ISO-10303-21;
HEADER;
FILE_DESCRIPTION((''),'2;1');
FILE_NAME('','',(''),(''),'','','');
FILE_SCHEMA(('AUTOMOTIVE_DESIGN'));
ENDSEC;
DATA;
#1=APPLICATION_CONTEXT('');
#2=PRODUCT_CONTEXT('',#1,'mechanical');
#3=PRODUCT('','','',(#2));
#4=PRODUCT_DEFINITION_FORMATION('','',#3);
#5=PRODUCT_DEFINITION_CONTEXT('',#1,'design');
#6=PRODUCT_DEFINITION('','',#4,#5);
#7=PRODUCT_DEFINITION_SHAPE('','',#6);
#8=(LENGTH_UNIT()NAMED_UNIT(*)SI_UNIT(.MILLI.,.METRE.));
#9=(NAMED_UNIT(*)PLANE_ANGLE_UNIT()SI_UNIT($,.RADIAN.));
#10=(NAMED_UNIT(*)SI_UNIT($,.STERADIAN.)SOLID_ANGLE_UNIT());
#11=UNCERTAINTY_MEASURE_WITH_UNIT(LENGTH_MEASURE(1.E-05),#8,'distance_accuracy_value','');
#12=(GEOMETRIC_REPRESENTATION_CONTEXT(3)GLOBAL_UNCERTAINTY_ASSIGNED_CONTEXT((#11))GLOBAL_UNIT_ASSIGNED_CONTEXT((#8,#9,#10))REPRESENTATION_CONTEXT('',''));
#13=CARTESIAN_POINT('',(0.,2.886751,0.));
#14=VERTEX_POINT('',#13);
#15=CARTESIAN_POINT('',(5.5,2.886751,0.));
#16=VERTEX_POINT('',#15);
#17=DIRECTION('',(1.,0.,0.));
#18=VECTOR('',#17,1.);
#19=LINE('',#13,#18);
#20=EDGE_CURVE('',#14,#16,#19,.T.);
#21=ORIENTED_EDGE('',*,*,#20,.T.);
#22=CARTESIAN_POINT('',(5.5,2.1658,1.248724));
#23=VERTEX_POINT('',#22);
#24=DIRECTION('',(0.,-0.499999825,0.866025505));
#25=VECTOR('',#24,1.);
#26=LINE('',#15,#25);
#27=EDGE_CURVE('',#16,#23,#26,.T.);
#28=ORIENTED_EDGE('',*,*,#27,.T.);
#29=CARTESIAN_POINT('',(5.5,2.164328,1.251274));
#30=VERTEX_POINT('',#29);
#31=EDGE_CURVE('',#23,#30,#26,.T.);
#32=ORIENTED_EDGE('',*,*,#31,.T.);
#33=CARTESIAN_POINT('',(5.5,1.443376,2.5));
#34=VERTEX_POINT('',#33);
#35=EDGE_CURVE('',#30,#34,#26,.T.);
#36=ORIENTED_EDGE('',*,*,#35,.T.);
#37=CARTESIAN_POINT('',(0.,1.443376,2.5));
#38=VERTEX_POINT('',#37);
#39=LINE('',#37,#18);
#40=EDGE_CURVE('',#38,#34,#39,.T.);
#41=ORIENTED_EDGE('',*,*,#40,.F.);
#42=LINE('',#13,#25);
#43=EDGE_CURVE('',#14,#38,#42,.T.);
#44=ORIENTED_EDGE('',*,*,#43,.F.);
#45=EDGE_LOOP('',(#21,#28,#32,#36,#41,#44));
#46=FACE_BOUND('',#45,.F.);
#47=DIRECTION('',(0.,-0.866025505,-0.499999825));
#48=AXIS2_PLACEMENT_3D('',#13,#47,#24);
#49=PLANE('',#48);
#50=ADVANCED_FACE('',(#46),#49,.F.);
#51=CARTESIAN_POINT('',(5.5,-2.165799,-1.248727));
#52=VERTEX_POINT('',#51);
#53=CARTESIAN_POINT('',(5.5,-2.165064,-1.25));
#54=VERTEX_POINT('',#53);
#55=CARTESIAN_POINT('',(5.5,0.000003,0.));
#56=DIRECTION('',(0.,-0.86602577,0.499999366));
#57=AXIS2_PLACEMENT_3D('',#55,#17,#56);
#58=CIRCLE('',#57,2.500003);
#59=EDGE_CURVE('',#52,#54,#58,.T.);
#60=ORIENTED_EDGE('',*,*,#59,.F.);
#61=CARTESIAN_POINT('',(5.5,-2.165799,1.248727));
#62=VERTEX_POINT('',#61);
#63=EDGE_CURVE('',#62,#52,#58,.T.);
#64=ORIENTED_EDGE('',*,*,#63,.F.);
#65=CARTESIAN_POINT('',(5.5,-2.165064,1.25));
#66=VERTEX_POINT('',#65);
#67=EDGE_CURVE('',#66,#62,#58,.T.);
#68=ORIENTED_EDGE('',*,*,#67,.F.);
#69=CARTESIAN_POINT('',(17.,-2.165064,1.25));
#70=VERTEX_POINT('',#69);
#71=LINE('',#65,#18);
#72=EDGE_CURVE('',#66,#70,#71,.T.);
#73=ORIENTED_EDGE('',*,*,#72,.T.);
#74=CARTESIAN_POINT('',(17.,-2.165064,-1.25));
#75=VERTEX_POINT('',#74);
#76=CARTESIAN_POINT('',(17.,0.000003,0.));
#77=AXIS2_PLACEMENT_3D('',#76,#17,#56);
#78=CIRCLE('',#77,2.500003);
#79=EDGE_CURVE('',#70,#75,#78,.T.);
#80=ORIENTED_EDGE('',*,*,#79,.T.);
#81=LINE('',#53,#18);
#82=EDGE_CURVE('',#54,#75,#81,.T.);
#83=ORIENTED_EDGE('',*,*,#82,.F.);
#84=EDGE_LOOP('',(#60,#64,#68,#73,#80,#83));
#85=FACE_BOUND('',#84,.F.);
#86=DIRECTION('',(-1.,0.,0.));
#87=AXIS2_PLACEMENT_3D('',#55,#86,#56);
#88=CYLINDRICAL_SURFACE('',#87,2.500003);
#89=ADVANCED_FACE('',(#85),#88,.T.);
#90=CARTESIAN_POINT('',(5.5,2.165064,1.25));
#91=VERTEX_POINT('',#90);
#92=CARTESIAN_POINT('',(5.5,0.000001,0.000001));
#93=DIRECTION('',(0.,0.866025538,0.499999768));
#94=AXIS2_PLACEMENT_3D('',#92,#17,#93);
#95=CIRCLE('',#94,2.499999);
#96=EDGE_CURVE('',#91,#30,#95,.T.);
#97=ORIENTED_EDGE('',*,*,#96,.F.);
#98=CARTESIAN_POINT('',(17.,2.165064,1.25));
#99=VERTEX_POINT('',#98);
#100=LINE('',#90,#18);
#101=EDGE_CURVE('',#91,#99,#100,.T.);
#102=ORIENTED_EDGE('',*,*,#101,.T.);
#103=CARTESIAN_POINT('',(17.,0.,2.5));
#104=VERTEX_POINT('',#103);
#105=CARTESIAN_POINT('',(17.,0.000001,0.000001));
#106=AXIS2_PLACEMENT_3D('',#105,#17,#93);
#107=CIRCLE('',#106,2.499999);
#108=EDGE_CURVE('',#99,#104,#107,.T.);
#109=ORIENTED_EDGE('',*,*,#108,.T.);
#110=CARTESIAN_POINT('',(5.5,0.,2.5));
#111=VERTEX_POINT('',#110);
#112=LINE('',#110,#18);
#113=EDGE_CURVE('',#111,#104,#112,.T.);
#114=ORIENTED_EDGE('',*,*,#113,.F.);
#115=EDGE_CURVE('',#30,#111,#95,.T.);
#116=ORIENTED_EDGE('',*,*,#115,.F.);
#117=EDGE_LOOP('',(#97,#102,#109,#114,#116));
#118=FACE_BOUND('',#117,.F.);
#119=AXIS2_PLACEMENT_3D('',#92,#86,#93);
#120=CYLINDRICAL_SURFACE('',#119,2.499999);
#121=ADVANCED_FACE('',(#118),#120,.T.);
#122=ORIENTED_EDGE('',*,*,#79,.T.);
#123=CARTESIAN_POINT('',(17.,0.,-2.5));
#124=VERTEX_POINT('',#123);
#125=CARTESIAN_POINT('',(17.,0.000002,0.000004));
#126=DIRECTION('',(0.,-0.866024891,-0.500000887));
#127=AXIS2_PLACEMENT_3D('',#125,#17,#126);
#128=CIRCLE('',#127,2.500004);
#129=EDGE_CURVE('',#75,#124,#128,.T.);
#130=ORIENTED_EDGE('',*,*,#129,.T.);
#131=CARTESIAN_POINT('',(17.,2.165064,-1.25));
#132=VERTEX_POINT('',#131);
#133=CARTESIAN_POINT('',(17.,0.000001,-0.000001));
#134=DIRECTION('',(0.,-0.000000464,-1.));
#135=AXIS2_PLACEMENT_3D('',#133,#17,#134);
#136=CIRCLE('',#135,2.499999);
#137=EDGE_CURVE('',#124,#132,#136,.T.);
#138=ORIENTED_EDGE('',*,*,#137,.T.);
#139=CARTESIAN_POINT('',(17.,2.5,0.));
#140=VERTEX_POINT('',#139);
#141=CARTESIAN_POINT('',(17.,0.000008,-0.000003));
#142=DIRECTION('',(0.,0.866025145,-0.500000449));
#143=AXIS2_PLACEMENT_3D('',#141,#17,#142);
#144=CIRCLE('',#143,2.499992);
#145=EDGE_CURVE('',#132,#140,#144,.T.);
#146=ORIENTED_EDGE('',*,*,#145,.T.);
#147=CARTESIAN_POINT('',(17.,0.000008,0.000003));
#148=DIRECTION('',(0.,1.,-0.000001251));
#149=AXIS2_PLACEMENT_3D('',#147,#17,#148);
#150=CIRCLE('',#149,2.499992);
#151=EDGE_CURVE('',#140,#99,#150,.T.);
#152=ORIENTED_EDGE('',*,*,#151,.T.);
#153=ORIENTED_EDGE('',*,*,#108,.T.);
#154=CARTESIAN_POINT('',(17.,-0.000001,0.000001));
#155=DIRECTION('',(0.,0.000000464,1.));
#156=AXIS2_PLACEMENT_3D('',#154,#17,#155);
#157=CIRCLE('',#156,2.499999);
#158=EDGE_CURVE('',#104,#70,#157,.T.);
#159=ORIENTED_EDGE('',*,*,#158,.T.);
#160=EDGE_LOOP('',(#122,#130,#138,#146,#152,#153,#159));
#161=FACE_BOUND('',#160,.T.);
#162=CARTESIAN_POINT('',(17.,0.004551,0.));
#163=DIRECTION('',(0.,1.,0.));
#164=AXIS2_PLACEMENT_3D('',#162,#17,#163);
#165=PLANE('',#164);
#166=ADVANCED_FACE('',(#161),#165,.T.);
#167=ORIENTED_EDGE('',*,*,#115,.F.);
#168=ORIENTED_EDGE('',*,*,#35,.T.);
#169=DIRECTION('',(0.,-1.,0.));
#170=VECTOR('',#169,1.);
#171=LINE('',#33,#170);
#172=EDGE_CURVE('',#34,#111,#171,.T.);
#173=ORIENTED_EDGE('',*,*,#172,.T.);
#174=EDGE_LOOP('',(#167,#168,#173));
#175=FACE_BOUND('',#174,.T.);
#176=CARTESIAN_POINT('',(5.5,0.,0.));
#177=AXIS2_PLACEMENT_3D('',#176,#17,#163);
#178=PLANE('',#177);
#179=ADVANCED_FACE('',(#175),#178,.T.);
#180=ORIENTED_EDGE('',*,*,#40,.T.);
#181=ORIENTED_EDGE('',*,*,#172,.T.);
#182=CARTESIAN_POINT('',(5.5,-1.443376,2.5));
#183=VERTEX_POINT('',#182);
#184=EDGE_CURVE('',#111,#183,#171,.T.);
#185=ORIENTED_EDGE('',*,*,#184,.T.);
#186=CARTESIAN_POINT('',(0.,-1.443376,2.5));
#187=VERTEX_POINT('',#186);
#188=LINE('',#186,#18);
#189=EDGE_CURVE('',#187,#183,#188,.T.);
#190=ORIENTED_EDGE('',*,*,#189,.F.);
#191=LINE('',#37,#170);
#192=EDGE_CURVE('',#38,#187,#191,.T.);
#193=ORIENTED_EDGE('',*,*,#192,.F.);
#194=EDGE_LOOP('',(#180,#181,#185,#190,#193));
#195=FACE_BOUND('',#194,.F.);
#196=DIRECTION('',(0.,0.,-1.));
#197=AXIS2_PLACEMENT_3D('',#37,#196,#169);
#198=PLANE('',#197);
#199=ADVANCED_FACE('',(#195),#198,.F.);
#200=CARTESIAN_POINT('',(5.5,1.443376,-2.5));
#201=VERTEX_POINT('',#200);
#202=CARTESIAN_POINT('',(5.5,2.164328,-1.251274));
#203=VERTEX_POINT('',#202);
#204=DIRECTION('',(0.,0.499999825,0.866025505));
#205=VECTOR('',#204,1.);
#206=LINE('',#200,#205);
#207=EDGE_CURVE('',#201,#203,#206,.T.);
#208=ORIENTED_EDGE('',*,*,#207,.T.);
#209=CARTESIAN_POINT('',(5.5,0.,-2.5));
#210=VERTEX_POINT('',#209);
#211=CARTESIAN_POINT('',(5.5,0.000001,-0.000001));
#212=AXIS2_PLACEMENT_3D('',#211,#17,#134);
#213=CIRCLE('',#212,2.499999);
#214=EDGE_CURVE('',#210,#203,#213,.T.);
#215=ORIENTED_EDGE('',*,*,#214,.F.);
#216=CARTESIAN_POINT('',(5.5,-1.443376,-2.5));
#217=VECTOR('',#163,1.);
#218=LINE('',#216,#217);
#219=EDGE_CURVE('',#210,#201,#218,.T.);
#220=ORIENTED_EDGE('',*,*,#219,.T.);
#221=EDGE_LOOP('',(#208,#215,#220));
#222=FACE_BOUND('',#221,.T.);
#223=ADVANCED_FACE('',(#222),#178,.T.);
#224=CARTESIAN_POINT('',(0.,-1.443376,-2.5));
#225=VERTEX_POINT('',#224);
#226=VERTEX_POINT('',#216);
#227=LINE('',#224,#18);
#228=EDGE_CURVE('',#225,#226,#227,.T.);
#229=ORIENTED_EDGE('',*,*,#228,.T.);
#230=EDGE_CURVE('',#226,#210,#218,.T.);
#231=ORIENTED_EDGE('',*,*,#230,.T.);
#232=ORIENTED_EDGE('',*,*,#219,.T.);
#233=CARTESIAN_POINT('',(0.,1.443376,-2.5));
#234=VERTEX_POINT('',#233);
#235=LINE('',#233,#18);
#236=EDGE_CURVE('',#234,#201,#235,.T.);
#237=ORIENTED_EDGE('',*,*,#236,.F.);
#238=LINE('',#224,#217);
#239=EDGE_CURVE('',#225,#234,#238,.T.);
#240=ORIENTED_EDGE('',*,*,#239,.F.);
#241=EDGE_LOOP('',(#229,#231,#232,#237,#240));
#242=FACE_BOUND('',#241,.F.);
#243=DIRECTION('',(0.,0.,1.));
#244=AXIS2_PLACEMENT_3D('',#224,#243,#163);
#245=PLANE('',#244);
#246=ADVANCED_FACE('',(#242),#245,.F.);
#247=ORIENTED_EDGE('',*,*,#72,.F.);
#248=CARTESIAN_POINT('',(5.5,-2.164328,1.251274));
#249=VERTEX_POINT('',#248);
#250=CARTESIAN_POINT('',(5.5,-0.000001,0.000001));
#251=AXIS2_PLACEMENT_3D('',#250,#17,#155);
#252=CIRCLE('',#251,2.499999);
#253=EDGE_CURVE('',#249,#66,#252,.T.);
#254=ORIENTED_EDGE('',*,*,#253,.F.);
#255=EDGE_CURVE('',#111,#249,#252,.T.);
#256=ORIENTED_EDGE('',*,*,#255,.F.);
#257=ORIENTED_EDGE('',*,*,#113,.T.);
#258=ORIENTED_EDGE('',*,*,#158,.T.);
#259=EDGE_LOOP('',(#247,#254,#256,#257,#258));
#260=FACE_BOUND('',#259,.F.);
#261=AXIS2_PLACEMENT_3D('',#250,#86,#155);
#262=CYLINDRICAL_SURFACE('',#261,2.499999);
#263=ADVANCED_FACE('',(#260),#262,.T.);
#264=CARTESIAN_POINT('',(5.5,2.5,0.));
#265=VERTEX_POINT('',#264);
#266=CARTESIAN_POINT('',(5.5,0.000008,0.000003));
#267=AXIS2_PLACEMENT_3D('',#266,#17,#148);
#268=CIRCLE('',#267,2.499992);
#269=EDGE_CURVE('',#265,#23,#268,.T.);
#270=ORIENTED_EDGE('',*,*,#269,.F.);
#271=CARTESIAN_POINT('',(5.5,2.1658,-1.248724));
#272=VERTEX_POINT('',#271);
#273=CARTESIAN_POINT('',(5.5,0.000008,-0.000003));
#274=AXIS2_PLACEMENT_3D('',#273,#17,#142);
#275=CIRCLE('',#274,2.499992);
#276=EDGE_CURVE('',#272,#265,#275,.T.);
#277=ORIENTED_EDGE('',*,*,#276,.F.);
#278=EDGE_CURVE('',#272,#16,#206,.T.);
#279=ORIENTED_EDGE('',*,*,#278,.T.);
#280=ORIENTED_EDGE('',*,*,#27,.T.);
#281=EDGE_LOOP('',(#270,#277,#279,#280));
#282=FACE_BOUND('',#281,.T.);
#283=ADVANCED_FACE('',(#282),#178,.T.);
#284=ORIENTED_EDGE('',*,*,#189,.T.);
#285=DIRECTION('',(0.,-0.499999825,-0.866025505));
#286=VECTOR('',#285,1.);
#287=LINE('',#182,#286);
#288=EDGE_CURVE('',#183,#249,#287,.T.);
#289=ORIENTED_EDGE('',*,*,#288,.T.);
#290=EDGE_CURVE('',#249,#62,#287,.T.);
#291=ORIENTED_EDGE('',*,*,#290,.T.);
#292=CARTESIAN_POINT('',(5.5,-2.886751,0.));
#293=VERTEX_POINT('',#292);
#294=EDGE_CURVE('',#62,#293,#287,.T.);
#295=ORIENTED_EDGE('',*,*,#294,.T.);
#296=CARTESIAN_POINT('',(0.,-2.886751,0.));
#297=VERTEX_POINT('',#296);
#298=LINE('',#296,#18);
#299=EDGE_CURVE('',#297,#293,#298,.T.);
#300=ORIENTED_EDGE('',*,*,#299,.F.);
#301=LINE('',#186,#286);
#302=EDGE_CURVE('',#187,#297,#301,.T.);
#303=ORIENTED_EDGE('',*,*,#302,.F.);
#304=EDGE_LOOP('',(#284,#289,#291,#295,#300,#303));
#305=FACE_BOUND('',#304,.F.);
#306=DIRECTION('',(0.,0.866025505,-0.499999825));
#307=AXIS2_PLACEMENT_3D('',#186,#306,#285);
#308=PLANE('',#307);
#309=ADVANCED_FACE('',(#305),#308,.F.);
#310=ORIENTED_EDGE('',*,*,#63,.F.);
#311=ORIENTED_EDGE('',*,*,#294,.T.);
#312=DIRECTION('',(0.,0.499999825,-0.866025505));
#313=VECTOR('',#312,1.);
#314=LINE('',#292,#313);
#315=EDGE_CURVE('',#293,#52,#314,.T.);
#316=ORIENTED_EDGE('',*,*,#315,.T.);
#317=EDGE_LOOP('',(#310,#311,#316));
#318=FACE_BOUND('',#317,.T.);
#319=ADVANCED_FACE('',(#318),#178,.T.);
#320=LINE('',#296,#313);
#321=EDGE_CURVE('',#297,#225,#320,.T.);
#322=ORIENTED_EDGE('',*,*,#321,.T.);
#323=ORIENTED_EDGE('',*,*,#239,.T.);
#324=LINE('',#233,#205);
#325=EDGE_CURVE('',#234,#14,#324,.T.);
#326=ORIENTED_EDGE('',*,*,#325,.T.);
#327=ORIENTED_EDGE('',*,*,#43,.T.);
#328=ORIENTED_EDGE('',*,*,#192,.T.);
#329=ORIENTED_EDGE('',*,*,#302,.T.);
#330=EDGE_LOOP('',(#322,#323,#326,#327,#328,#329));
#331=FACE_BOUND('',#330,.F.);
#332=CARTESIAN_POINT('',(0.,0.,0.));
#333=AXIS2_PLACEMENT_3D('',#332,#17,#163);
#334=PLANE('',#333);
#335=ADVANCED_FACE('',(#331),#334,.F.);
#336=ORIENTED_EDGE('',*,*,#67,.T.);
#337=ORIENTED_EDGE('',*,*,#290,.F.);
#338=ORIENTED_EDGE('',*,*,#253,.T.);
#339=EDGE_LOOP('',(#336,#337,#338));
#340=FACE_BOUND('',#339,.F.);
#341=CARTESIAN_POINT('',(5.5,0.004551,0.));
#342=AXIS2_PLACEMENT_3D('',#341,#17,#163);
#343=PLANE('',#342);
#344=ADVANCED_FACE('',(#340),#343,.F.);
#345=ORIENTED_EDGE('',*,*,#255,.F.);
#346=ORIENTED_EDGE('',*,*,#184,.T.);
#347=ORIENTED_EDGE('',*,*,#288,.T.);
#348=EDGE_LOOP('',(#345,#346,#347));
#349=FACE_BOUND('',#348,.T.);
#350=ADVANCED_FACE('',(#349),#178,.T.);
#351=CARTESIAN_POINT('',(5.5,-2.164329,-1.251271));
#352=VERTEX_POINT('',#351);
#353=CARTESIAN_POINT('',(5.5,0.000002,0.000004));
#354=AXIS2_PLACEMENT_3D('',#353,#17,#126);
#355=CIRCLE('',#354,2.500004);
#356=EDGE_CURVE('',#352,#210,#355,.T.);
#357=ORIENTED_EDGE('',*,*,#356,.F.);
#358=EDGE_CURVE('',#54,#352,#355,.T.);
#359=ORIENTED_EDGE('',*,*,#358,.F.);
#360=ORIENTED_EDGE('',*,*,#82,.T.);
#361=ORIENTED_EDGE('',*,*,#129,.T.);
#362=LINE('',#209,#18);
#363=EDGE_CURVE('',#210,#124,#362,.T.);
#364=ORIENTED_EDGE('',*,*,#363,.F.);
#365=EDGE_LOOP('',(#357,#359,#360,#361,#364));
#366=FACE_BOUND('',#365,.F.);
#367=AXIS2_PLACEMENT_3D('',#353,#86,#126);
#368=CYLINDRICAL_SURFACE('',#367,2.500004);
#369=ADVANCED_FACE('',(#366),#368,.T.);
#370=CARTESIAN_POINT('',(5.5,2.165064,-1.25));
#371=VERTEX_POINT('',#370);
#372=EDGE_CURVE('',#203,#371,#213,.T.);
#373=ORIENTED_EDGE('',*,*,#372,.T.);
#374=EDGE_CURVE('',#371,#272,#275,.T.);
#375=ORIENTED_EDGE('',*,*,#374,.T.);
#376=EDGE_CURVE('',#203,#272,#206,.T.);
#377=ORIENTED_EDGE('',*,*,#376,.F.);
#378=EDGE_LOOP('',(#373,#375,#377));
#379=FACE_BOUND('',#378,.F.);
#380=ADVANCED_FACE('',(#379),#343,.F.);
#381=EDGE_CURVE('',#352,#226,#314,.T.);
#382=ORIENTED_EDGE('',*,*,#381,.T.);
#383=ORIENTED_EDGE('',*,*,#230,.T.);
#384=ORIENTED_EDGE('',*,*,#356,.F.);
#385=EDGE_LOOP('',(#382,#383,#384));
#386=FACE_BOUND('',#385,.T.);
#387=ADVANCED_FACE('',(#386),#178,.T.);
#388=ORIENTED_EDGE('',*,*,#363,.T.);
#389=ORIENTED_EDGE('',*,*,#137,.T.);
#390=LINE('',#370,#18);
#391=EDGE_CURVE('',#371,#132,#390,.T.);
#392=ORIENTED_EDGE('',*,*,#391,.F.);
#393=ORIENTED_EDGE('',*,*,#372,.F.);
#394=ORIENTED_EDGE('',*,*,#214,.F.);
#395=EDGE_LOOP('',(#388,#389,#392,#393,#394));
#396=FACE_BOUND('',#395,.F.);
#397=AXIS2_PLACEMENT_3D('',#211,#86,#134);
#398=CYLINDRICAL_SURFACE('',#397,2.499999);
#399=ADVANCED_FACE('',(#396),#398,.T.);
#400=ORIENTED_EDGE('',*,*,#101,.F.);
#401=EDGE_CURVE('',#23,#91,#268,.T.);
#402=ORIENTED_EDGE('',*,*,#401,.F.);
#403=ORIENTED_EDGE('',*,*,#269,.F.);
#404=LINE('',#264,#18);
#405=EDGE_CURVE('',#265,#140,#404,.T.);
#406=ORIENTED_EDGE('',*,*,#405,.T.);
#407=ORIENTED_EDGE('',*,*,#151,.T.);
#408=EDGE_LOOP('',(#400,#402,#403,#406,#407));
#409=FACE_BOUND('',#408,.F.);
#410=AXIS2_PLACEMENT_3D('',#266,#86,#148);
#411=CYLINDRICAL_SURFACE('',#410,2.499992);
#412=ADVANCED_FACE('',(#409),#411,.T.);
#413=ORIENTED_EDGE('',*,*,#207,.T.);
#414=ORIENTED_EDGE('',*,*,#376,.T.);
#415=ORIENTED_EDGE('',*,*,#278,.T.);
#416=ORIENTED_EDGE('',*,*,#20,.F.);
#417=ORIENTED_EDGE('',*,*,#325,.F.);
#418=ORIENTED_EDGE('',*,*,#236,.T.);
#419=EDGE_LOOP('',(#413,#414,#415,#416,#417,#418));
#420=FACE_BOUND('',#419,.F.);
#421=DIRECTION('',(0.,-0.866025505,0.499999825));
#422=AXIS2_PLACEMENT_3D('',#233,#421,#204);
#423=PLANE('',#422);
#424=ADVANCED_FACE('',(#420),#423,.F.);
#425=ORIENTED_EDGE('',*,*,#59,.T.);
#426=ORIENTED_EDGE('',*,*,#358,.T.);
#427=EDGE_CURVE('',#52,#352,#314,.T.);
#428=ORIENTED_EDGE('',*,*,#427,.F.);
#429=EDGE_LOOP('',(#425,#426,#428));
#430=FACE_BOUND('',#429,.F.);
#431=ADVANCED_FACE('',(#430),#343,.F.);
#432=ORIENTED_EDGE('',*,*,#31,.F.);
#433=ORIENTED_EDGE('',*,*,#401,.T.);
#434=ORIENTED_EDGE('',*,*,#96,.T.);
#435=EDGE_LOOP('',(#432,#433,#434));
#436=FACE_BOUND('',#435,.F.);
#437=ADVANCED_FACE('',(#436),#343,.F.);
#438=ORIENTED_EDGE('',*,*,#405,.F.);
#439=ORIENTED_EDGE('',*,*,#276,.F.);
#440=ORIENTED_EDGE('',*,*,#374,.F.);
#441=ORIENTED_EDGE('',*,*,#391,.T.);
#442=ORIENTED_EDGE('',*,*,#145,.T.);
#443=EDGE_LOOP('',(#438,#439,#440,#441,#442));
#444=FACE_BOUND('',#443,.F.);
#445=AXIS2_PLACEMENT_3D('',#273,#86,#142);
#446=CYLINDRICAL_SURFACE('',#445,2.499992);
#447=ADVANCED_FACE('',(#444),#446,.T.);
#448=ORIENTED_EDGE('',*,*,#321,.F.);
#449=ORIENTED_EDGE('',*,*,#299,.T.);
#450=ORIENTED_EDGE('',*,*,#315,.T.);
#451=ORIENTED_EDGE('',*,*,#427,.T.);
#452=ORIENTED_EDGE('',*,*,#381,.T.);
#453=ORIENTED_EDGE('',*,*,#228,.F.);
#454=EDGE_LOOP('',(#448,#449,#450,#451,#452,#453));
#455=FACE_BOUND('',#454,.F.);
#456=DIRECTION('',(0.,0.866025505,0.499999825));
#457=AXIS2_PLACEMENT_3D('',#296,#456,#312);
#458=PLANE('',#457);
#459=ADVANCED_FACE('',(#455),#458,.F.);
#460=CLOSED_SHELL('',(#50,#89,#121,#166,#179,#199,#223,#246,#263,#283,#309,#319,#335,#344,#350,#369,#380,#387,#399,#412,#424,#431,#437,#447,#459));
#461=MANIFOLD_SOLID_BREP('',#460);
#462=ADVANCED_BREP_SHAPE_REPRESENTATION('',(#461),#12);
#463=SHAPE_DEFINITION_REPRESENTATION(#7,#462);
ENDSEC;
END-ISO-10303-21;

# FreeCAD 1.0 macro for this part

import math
import FreeCAD as App
import Part
import Sketcher
Q = App.Units.Quantity


def add_polygon(sketch, points):
    """Adds a closed chain of lines whose ends are joined by coincident constraints."""
    first, n = sketch.GeometryCount, len(points)
    for a, b in zip(points, points[1:] + points[:1]):
        sketch.addGeometry(Part.LineSegment(App.Vector(*a, 0), App.Vector(*b, 0)), False)
    for i in range(n):
        sketch.addConstraint(Sketcher.Constraint("Coincident", first + i, 2, first + (i + 1) % n, 1))

doc = App.newDocument("Part")
body = doc.addObject("PartDesign::Body", "Body")

# Sketch on YZ plane
sketch1 = body.newObject("Sketcher::SketchObject", "Sketch")
sketch1.AttachmentSupport = (doc.getObject("YZ_Plane"), [""])
sketch1.MapMode = "FlatFace"
add_polygon(sketch1, [(1.443376, 2.5), (-1.443376, 2.5), (-2.886751, 0), (-1.443376, -2.5), (1.443376, -2.5), (2.886751, 0)])  # lines 0-5
sketch1.addConstraint(Sketcher.Constraint("Horizontal", 0))
sketch1.addConstraint(Sketcher.Constraint("Horizontal", 3))
sketch1.addConstraint(Sketcher.Constraint("Symmetric", 0, 2, 3, 2, -1, 1))
sketch1.addConstraint(Sketcher.Constraint("Symmetric", 1, 2, 4, 2, -1, 1))
sketch1.addConstraint(Sketcher.Constraint("PointOnObject", 1, 2, -1))
sketch1.addConstraint(Sketcher.Constraint("Parallel", 2, 5))
sketch1.addConstraint(Sketcher.Constraint("Vertical", 0, 2, 2, 2))
sketch1.addConstraint(Sketcher.Constraint("Angle", 1, Q("-119.999988 deg")))
sketch1.addConstraint(Sketcher.Constraint("DistanceY", 2, 2, 0, 2, 5.0))
sketch1.addConstraint(Sketcher.Constraint("DistanceX", 0, 2, 0, 1, 2.886752))
pad1 = body.newObject("PartDesign::Pad", "Pad")
pad1.Profile = sketch1
pad1.Length = 5.5

# Sketch on YZ plane
sketch2 = body.newObject("Sketcher::SketchObject", "Sketch001")
sketch2.AttachmentSupport = (doc.getObject("YZ_Plane"), [""])
sketch2.MapMode = "FlatFace"
sketch2.AttachmentOffset = App.Placement(App.Vector(0, 0, 5.5), App.Rotation())
sketch2.addGeometry(Part.ArcOfCircle(Part.Circle(App.Vector(0.000008, -0.000003, 0), App.Vector(0, 0, 1), 2.499992), math.radians(-30.00003), math.radians(0.000072)), False)
sketch2.addGeometry(Part.ArcOfCircle(Part.Circle(App.Vector(0.000008, 0.000003, 0), App.Vector(0, 0, 1), 2.499992), math.radians(-0.000072), math.radians(30.00003)), False)
sketch2.addGeometry(Part.ArcOfCircle(Part.Circle(App.Vector(0.000001, 0.000001, 0), App.Vector(0, 0, 1), 2.499999), math.radians(29.999985), math.radians(90.000027)), False)
sketch2.addGeometry(Part.ArcOfCircle(Part.Circle(App.Vector(-0.000001, 0.000001, 0), App.Vector(0, 0, 1), 2.499999), math.radians(89.999973), math.radians(150.000015)), False)
sketch2.addGeometry(Part.ArcOfCircle(Part.Circle(App.Vector(0.000003, 0, 0), App.Vector(0, 0, 1), 2.500003), math.radians(150.000042), math.radians(209.999958)), False)
sketch2.addGeometry(Part.ArcOfCircle(Part.Circle(App.Vector(0.000002, 0.000004, 0), App.Vector(0, 0, 1), 2.500004), math.radians(-149.999941), math.radians(-90.000047)), False)
sketch2.addGeometry(Part.ArcOfCircle(Part.Circle(App.Vector(0.000001, -0.000001, 0), App.Vector(0, 0, 1), 2.499999), math.radians(-90.000027), math.radians(-29.999985)), False)
sketch2.addConstraint(Sketcher.Constraint("Coincident", 0, 2, 1, 1))
sketch2.addConstraint(Sketcher.Constraint("Tangent", 1, 2, 2, 1))
sketch2.addConstraint(Sketcher.Constraint("Tangent", 2, 2, 3, 1))
sketch2.addConstraint(Sketcher.Constraint("Tangent", 3, 2, 4, 1))
sketch2.addConstraint(Sketcher.Constraint("Tangent", 4, 2, 5, 1))
sketch2.addConstraint(Sketcher.Constraint("Tangent", 5, 2, 6, 1))
sketch2.addConstraint(Sketcher.Constraint("Tangent", 6, 2, 0, 1))
sketch2.addConstraint(Sketcher.Constraint("Coincident", 0, 3, -1, 1))
sketch2.addConstraint(Sketcher.Constraint("Coincident", 1, 3, -1, 1))
sketch2.addConstraint(Sketcher.Constraint("Coincident", 3, 3, -1, 1))
sketch2.addConstraint(Sketcher.Constraint("Equal", 4, 5))
sketch2.addConstraint(Sketcher.Constraint("PointOnObject", 0, 2, -1))
sketch2.addConstraint(Sketcher.Constraint("PointOnObject", 2, 2, -2))
sketch2.addConstraint(Sketcher.Constraint("PointOnObject", 5, 2, -2))
sketch2.addConstraint(Sketcher.Constraint("Horizontal", 1, 2, 3, 2))
sketch2.addConstraint(Sketcher.Constraint("Horizontal", 4, 2, 6, 2))
sketch2.addConstraint(Sketcher.Constraint("Vertical", 3, 2, 4, 2))
sketch2.addConstraint(Sketcher.Constraint("Radius", 2, 2.499999))
sketch2.addConstraint(Sketcher.Constraint("DistanceY", 4, 2, 3, 2, 2.5))
pad2 = body.newObject("PartDesign::Pad", "Pad001")
pad2.Profile = sketch2
pad2.Length = 11.5

doc.recompute()
